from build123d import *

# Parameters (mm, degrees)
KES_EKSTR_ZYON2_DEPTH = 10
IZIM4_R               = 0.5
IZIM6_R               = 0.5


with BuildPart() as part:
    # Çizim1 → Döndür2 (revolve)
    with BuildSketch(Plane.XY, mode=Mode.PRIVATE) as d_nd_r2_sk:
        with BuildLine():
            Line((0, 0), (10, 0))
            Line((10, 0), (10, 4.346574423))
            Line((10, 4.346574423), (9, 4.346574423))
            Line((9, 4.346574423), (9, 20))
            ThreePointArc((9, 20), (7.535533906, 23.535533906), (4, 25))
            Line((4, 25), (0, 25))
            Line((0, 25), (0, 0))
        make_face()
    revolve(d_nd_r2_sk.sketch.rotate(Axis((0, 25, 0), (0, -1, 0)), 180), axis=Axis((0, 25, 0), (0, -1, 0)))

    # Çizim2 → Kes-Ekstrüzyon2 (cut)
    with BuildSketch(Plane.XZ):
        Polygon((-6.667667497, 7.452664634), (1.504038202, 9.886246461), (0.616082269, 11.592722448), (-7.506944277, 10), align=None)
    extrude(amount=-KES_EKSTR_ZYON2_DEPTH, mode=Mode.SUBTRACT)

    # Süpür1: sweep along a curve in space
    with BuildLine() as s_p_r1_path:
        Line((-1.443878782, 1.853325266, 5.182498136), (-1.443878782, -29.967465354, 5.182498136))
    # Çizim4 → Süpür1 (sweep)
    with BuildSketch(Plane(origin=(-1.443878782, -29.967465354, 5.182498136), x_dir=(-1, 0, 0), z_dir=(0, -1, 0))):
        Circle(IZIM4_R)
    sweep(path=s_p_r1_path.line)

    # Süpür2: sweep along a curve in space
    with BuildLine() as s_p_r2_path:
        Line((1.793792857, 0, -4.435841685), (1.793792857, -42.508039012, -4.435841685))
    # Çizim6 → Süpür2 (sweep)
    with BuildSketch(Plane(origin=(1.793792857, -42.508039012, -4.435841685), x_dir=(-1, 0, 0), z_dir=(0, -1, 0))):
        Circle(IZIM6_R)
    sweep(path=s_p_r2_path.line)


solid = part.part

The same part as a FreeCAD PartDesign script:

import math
import FreeCAD as App
import Part
import Sketcher
from FreeCAD import Vector
Q = App.Units.Quantity

doc = App.newDocument("Part")
body = doc.addObject("PartDesign::Body", "Body")

# Sketch on XY plane
sketch1 = body.newObject("Sketcher::SketchObject", "Sketch")
sketch1.AttachmentSupport = (doc.getObject("XY_Plane"), [""])
sketch1.MapMode = "FlatFace"
sketch1.addGeometry([
    Part.LineSegment(Vector(0, 0, 0), Vector(10, 0, 0)),  # 0
    Part.LineSegment(Vector(10, 0, 0), Vector(10, 4.3, 0)),  # 1
    Part.LineSegment(Vector(10, 4.3, 0), Vector(9, 4.3, 0)),  # 2
    Part.LineSegment(Vector(9, 4.3, 0), Vector(9, 20, 0)),  # 3
    Part.ArcOfCircle(Part.Circle(Vector(4, 20, 0), Vector(0, 0, 1), 5), math.radians(0), math.radians(90)),  # 4
    Part.LineSegment(Vector(4, 25, 0), Vector(0, 25, 0)),  # 5
    Part.LineSegment(Vector(0, 25, 0), Vector(0, 0, 0)),  # 6
], False)
sketch1.addConstraint([
    Sketcher.Constraint("Coincident", 0, 2, 1, 1),
    Sketcher.Constraint("Coincident", 1, 2, 2, 1),
    Sketcher.Constraint("Coincident", 2, 2, 3, 1),
    Sketcher.Constraint("Tangent", 3, 2, 4, 1),
    Sketcher.Constraint("Tangent", 4, 2, 5, 1),
    Sketcher.Constraint("Coincident", 5, 2, 6, 1),
    Sketcher.Constraint("Coincident", 6, 2, 0, 1),
    Sketcher.Constraint("Horizontal", 0),
    Sketcher.Constraint("Vertical", 1),
    Sketcher.Constraint("Horizontal", 2),
    Sketcher.Constraint("Vertical", 3),
    Sketcher.Constraint("Horizontal", 5),
    Sketcher.Constraint("Vertical", 6),
    Sketcher.Constraint("Coincident", 6, 2, -1, 1),
    Sketcher.Constraint("Radius", 4, Q("5 mm")),
    Sketcher.Constraint("DistanceX", 0, 1, 0, 2, Q("10 mm")),
    Sketcher.Constraint("DistanceX", 2, 2, 2, 1, Q("1 mm")),
    Sketcher.Constraint("DistanceY", 6, 2, 6, 1, Q("25 mm")),
    Sketcher.Constraint("DistanceY", 1, 1, 1, 2, Q("4.346574 mm")),
])
revolution = body.newObject("PartDesign::Revolution", "Revolution")
revolution.Profile = sketch1
revolution.ReferenceAxis = (sketch1, ["V_Axis"])
revolution.Angle = 360

# Sketch on XZ plane
sketch2 = body.newObject("Sketcher::SketchObject", "Sketch001")
sketch2.AttachmentSupport = (doc.getObject("XZ_Plane"), [""])
sketch2.MapMode = "FlatFace"
sketch2.addGeometry([
    Part.LineSegment(Vector(-6.7, 7.5, 0), Vector(1.5, 9.9, 0)),
    Part.LineSegment(Vector(1.5, 9.9, 0), Vector(0.6, 11.6, 0)),
    Part.LineSegment(Vector(0.6, 11.6, 0), Vector(-7.5, 10, 0)),
    Part.LineSegment(Vector(-7.5, 10, 0), Vector(-6.7, 7.5, 0)),
], False)
sketch2.addConstraint([
    Sketcher.Constraint("Coincident", 0, 2, 1, 1),
    Sketcher.Constraint("Coincident", 1, 2, 2, 1),
    Sketcher.Constraint("Coincident", 2, 2, 3, 1),
    Sketcher.Constraint("Coincident", 3, 2, 0, 1),
    Sketcher.Constraint("DistanceY", -1, 1, 2, 2, Q("10 mm")),
    Sketcher.Constraint("Angle", 1, Q("117.489981 deg")),
    Sketcher.Constraint("Distance", 2, Q("8.2777 mm")),
    Sketcher.Constraint("DistanceX", -1, 1, 0, 2, Q("1.504038 mm")),
    Sketcher.Constraint("DistanceX", 3, 2, 1, 2, Q("7.28375 mm")),
    Sketcher.Constraint("DistanceY", 3, 2, 0, 2, Q("2.433582 mm")),
    Sketcher.Constraint("Distance", 0, Q("8.526376 mm")),
    Sketcher.Constraint("Distance", 3, Q("2.682033 mm")),
])
pocket1 = body.newObject("PartDesign::Pocket", "Pocket")
pocket1.Profile = sketch2
pocket1.Length = 10

# Sketch on XZ plane
sketch3 = body.newObject("Sketcher::SketchObject", "Sketch002")
sketch3.AttachmentSupport = (doc.getObject("XZ_Plane"), [""])
sketch3.MapMode = "FlatFace"
sketch3.AttachmentOffset = App.Placement(Vector(0, 0, 29.967465), App.Rotation())
sketch3.addGeometry(Part.Circle(Vector(-1.4, 5.2, 0), Vector(0, 0, 1), 0.5), False)
sketch3.addConstraint([
    Sketcher.Constraint("Diameter", 0, Q("1 mm")),
    Sketcher.Constraint("DistanceY", -1, 1, 0, 3, Q("5.182498 mm")),
    Sketcher.Constraint("DistanceX", 0, 3, -1, 1, Q("1.443879 mm")),
])

# Sketch on XY plane
sketch4 = body.newObject("Sketcher::SketchObject", "Sketch003")
sketch4.AttachmentSupport = (doc.getObject("XY_Plane"), [""])
sketch4.MapMode = "FlatFace"
sketch4.AttachmentOffset = App.Placement(Vector(0, 0, 5.182498), App.Rotation())
sketch4.addGeometry(Part.LineSegment(Vector(-1, 2, 0), Vector(-1, -30, 0)), False)
sketch4.addConstraint([
    Sketcher.Constraint("Vertical", 0),
    Sketcher.Constraint("DistanceY", 0, 2, 0, 1, Q("31.820791 mm")),
    Sketcher.Constraint("DistanceX", 0, 1, -1, 1, Q("1.443879 mm")),
    Sketcher.Constraint("DistanceY", -1, 1, 0, 1, Q("1.853325 mm")),
])
doc.recompute()

additivepipe = body.newObject("PartDesign::AdditivePipe", "AdditivePipe")
additivepipe.Profile = sketch3
additivepipe.Spine = (sketch4, ["Edge1"])

# Sketch on XZ plane
sketch5 = body.newObject("Sketcher::SketchObject", "Sketch004")
sketch5.AttachmentSupport = (doc.getObject("XZ_Plane"), [""])
sketch5.MapMode = "FlatFace"
sketch5.AttachmentOffset = App.Placement(Vector(0, 0, 42.508039), App.Rotation())
sketch5.addGeometry(Part.Circle(Vector(1.8, -4.4, 0), Vector(0, 0, 1), 0.5), False)
sketch5.addConstraint([
    Sketcher.Constraint("Diameter", 0, Q("1 mm")),
    Sketcher.Constraint("DistanceY", 0, 3, -1, 1, Q("4.435842 mm")),
    Sketcher.Constraint("DistanceX", -1, 1, 0, 3, Q("1.793793 mm")),
])

# Sketch on XY plane
sketch6 = body.newObject("Sketcher::SketchObject", "Sketch005")
sketch6.AttachmentSupport = (doc.getObject("XY_Plane"), [""])
sketch6.MapMode = "FlatFace"
sketch6.AttachmentOffset = App.Placement(Vector(0, 0, -4.435842), App.Rotation())
sketch6.addGeometry(Part.LineSegment(Vector(2, 0, 0), Vector(2, -43, 0)), False)
sketch6.addConstraint([
    Sketcher.Constraint("Vertical", 0),
    Sketcher.Constraint("PointOnObject", 0, 1, -1),
    Sketcher.Constraint("DistanceY", 0, 2, 0, 1, Q("42.508039 mm")),
    Sketcher.Constraint("DistanceX", -1, 1, 0, 1, Q("1.793793 mm")),
])
doc.recompute()

additivepipe2 = body.newObject("PartDesign::AdditivePipe", "AdditivePipe001")
additivepipe2.Profile = sketch5
additivepipe2.Spine = (sketch6, ["Edge1"])

doc.recompute()
